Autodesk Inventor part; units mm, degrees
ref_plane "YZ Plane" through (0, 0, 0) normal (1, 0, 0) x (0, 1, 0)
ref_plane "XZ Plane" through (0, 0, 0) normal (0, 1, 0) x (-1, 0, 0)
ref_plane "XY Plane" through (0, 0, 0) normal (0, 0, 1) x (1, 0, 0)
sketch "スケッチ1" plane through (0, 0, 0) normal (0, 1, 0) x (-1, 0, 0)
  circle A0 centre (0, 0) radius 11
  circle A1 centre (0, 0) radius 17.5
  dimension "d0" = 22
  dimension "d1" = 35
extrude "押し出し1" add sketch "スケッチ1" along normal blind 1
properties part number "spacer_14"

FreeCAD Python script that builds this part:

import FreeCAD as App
import Part
import Sketcher

doc = App.newDocument("Part")
body = doc.addObject("PartDesign::Body", "Body")

sketch1 = body.newObject("Sketcher::SketchObject", "Sketch")
sketch1.AttachmentSupport = (doc.getObject("XZ_Plane"), [""])
sketch1.MapMode = "FlatFace"
sketch1.addGeometry(Part.Circle(App.Vector(0, 0, 0), App.Vector(0, 0, 1), 18), False)
sketch1.addGeometry(Part.Circle(App.Vector(0, 0, 0), App.Vector(0, 0, 1), 11), False)
sketch1.addConstraint(Sketcher.Constraint("Coincident", 0, 3, -1, 1))
sketch1.addConstraint(Sketcher.Constraint("Coincident", 1, 3, -1, 1))
sketch1.addConstraint(Sketcher.Constraint("Diameter", 0, 35.0))
sketch1.addConstraint(Sketcher.Constraint("Diameter", 1, 22.0))
pad1 = body.newObject("PartDesign::Pad", "Pad")
pad1.Profile = sketch1
pad1.Length = 1
pad1.Reversed = True

doc.recompute()
